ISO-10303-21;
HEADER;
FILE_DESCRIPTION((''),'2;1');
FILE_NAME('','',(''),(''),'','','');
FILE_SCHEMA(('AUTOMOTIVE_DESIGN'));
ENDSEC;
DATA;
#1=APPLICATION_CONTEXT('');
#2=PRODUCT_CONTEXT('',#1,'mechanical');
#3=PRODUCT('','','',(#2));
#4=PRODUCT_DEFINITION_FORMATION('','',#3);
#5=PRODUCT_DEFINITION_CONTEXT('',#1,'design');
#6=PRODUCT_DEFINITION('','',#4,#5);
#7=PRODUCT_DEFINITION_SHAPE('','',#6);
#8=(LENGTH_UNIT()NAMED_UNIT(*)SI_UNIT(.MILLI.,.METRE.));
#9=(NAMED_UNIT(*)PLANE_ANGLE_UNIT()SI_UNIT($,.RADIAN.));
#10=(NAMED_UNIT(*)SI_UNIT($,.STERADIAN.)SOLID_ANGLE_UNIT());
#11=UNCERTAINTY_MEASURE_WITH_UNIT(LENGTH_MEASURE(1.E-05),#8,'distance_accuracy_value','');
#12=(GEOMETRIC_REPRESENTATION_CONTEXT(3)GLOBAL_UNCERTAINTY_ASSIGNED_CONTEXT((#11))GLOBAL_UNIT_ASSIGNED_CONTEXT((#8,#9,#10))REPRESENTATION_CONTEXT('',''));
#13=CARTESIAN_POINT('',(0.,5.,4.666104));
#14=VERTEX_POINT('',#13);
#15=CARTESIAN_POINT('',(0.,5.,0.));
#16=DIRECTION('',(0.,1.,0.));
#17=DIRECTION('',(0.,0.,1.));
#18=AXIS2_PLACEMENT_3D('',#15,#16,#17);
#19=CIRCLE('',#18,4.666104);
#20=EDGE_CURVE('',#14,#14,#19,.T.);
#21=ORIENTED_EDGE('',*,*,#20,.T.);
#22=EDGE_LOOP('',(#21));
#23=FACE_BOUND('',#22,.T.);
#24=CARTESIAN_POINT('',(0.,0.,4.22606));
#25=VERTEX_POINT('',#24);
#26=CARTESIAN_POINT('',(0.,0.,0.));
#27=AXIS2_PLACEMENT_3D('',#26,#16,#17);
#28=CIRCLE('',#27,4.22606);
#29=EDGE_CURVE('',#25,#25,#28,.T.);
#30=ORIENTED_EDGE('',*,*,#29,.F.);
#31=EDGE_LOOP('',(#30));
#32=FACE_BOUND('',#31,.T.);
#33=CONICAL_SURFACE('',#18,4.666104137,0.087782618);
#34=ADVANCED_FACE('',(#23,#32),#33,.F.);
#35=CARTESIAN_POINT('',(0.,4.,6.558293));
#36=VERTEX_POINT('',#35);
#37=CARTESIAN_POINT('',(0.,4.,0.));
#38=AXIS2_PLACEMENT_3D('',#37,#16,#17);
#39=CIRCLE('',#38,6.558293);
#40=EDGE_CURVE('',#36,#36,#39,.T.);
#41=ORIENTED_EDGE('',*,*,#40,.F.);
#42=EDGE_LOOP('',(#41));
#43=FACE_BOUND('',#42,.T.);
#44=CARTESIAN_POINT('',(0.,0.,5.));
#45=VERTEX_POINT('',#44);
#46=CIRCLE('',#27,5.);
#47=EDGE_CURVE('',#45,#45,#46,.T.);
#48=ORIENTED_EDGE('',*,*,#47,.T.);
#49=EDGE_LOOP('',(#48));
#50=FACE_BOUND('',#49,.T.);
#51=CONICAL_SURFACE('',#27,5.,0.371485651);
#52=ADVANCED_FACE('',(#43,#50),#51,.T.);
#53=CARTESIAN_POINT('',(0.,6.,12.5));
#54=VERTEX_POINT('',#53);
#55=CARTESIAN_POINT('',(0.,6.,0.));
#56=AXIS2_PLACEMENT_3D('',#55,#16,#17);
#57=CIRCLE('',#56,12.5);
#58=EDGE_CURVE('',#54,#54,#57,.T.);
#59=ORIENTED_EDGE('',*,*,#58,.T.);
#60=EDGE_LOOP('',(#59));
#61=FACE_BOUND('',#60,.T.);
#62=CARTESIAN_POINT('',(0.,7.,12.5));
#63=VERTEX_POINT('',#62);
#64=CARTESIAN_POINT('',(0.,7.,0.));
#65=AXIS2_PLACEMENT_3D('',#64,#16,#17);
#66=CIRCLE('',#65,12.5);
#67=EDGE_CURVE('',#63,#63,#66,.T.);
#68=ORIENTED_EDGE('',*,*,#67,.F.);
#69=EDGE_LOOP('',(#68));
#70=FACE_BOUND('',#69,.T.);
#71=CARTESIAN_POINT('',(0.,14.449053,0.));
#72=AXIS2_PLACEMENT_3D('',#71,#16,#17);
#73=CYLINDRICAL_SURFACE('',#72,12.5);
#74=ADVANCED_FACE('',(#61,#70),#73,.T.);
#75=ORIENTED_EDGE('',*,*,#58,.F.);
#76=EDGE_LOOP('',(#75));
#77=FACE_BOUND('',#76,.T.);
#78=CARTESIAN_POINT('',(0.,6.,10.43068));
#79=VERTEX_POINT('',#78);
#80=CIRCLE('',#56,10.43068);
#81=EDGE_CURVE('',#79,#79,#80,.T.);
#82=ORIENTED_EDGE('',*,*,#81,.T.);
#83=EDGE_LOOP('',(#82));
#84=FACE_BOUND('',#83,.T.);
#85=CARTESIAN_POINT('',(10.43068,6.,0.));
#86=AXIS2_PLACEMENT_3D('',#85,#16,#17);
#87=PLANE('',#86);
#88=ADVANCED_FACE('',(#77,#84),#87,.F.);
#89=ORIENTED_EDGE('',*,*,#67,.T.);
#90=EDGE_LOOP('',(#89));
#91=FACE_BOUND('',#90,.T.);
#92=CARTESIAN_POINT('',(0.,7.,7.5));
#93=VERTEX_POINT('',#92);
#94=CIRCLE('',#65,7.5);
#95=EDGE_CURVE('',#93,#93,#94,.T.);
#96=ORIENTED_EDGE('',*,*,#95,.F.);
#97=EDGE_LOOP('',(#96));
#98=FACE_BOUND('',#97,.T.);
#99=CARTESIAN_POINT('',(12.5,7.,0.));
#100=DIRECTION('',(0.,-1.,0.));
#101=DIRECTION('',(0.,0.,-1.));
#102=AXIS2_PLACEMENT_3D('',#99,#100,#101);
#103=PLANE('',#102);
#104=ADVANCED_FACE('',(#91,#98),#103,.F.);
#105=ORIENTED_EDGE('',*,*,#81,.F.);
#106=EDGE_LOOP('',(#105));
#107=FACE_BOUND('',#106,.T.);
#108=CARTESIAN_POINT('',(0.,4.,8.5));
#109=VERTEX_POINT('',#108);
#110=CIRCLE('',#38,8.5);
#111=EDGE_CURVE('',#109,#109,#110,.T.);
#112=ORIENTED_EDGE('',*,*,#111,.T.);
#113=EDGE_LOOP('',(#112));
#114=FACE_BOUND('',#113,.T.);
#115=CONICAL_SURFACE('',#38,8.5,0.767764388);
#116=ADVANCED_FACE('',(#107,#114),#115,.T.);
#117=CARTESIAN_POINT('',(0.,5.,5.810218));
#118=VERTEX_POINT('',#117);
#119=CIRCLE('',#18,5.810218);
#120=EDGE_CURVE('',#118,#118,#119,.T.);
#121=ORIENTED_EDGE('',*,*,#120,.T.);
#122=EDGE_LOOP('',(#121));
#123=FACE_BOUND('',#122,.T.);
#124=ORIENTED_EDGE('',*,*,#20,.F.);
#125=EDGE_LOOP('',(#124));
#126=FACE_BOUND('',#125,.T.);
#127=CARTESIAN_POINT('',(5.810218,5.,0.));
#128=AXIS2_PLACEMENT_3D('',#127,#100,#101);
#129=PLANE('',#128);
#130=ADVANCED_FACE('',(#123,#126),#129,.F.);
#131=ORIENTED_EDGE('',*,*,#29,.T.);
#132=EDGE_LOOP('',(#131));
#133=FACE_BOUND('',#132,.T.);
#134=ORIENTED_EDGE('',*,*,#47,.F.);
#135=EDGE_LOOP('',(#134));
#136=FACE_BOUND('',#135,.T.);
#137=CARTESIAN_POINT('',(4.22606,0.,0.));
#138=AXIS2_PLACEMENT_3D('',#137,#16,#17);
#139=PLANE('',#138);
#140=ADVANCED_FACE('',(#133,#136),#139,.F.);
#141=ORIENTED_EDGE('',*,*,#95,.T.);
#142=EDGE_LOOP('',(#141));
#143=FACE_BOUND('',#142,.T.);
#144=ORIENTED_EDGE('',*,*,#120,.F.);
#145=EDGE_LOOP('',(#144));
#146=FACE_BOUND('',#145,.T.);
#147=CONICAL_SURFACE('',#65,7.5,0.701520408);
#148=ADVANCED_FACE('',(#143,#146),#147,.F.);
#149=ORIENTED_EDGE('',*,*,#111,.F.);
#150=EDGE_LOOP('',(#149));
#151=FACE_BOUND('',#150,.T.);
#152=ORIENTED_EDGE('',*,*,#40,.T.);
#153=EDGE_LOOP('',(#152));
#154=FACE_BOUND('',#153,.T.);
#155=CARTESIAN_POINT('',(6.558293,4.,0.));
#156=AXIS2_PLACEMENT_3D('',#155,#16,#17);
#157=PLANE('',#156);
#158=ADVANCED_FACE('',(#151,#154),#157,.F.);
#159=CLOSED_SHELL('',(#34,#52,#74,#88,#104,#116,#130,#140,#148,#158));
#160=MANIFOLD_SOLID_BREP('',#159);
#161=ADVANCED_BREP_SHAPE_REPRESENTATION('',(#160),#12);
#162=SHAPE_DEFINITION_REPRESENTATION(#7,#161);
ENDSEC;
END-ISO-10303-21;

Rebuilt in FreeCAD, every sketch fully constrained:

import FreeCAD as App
import Part
import Sketcher
from FreeCAD import Vector


def add_polygon(sketch, points):
    """Adds a closed chain of lines whose ends are joined by coincident constraints."""
    first, n = sketch.GeometryCount, len(points)
    for a, b in zip(points, points[1:] + points[:1]):
        sketch.addGeometry(Part.LineSegment(App.Vector(*a, 0), App.Vector(*b, 0)), False)
    for i in range(n):
        sketch.addConstraint(Sketcher.Constraint("Coincident", first + i, 2, first + (i + 1) % n, 1))

doc = App.newDocument("Part")
body = doc.addObject("PartDesign::Body", "Body")

# Sketch on XY plane
sketch1 = doc.addObject("Sketcher::SketchObject", "Sketch")
body.addObject(sketch1)
sketch1.AttachmentSupport = (doc.XY_Plane, [""])
sketch1.MapMode = "FlatFace"
add_polygon(sketch1, [(4.22606, 0), (5, 0), (6.558293, 4), (8.5, 4), (10.43068, 6), (12.5, 6), (12.5, 7), (7.5, 7), (5.810218, 5), (4.666104, 5)])  # lines 0-9
sketch1.addConstraint(Sketcher.Constraint("Horizontal", 0))
sketch1.addConstraint(Sketcher.Constraint("Horizontal", 2))
sketch1.addConstraint(Sketcher.Constraint("Horizontal", 4))
sketch1.addConstraint(Sketcher.Constraint("Vertical", 5))
sketch1.addConstraint(Sketcher.Constraint("Horizontal", 6))
sketch1.addConstraint(Sketcher.Constraint("Horizontal", 8))
sketch1.addConstraint(Sketcher.Constraint("PointOnObject", 0, 2, -1))
sketch1.addConstraint(Sketcher.Constraint("DistanceX", 6, 2, 6, 1, 5.0))
sketch1.addConstraint(Sketcher.Constraint("DistanceY", 5, 1, 5, 2, 1.0))
sketch1.addConstraint(Sketcher.Constraint("DistanceX", -1, 1, 0, 2, 5.0))
sketch1.addConstraint(Sketcher.Constraint("DistanceY", -1, 1, 1, 2, 4.0))
sketch1.addConstraint(Sketcher.Constraint("DistanceY", -1, 1, 3, 2, 6.0))
sketch1.addConstraint(Sketcher.Constraint("DistanceY", -1, 1, 7, 2, 5.0))
sketch1.addConstraint(Sketcher.Constraint("DistanceX", 2, 2, 4, 2, 4.0))
sketch1.addConstraint(Sketcher.Constraint("DistanceX", -1, 1, 2, 2, 8.5))
sketch1.addConstraint(Sketcher.Constraint("DistanceX", 0, 1, 0, 2, 0.77394))
sketch1.addConstraint(Sketcher.Constraint("DistanceX", 4, 1, 4, 2, 2.06932))
sketch1.addConstraint(Sketcher.Constraint("DistanceX", 2, 1, 2, 2, 1.941707))
sketch1.addConstraint(Sketcher.Constraint("DistanceX", 8, 2, 8, 1, 1.144114))
sketch1.addConstraint(Sketcher.Constraint("DistanceX", -1, 1, 7, 2, 5.810218))
revolution = doc.addObject("PartDesign::Revolution", "Revolution")
body.addObject(revolution)
revolution.Profile = sketch1
revolution.ReferenceAxis = (sketch1, ["V_Axis"])
revolution.Angle = 360

doc.recompute()
